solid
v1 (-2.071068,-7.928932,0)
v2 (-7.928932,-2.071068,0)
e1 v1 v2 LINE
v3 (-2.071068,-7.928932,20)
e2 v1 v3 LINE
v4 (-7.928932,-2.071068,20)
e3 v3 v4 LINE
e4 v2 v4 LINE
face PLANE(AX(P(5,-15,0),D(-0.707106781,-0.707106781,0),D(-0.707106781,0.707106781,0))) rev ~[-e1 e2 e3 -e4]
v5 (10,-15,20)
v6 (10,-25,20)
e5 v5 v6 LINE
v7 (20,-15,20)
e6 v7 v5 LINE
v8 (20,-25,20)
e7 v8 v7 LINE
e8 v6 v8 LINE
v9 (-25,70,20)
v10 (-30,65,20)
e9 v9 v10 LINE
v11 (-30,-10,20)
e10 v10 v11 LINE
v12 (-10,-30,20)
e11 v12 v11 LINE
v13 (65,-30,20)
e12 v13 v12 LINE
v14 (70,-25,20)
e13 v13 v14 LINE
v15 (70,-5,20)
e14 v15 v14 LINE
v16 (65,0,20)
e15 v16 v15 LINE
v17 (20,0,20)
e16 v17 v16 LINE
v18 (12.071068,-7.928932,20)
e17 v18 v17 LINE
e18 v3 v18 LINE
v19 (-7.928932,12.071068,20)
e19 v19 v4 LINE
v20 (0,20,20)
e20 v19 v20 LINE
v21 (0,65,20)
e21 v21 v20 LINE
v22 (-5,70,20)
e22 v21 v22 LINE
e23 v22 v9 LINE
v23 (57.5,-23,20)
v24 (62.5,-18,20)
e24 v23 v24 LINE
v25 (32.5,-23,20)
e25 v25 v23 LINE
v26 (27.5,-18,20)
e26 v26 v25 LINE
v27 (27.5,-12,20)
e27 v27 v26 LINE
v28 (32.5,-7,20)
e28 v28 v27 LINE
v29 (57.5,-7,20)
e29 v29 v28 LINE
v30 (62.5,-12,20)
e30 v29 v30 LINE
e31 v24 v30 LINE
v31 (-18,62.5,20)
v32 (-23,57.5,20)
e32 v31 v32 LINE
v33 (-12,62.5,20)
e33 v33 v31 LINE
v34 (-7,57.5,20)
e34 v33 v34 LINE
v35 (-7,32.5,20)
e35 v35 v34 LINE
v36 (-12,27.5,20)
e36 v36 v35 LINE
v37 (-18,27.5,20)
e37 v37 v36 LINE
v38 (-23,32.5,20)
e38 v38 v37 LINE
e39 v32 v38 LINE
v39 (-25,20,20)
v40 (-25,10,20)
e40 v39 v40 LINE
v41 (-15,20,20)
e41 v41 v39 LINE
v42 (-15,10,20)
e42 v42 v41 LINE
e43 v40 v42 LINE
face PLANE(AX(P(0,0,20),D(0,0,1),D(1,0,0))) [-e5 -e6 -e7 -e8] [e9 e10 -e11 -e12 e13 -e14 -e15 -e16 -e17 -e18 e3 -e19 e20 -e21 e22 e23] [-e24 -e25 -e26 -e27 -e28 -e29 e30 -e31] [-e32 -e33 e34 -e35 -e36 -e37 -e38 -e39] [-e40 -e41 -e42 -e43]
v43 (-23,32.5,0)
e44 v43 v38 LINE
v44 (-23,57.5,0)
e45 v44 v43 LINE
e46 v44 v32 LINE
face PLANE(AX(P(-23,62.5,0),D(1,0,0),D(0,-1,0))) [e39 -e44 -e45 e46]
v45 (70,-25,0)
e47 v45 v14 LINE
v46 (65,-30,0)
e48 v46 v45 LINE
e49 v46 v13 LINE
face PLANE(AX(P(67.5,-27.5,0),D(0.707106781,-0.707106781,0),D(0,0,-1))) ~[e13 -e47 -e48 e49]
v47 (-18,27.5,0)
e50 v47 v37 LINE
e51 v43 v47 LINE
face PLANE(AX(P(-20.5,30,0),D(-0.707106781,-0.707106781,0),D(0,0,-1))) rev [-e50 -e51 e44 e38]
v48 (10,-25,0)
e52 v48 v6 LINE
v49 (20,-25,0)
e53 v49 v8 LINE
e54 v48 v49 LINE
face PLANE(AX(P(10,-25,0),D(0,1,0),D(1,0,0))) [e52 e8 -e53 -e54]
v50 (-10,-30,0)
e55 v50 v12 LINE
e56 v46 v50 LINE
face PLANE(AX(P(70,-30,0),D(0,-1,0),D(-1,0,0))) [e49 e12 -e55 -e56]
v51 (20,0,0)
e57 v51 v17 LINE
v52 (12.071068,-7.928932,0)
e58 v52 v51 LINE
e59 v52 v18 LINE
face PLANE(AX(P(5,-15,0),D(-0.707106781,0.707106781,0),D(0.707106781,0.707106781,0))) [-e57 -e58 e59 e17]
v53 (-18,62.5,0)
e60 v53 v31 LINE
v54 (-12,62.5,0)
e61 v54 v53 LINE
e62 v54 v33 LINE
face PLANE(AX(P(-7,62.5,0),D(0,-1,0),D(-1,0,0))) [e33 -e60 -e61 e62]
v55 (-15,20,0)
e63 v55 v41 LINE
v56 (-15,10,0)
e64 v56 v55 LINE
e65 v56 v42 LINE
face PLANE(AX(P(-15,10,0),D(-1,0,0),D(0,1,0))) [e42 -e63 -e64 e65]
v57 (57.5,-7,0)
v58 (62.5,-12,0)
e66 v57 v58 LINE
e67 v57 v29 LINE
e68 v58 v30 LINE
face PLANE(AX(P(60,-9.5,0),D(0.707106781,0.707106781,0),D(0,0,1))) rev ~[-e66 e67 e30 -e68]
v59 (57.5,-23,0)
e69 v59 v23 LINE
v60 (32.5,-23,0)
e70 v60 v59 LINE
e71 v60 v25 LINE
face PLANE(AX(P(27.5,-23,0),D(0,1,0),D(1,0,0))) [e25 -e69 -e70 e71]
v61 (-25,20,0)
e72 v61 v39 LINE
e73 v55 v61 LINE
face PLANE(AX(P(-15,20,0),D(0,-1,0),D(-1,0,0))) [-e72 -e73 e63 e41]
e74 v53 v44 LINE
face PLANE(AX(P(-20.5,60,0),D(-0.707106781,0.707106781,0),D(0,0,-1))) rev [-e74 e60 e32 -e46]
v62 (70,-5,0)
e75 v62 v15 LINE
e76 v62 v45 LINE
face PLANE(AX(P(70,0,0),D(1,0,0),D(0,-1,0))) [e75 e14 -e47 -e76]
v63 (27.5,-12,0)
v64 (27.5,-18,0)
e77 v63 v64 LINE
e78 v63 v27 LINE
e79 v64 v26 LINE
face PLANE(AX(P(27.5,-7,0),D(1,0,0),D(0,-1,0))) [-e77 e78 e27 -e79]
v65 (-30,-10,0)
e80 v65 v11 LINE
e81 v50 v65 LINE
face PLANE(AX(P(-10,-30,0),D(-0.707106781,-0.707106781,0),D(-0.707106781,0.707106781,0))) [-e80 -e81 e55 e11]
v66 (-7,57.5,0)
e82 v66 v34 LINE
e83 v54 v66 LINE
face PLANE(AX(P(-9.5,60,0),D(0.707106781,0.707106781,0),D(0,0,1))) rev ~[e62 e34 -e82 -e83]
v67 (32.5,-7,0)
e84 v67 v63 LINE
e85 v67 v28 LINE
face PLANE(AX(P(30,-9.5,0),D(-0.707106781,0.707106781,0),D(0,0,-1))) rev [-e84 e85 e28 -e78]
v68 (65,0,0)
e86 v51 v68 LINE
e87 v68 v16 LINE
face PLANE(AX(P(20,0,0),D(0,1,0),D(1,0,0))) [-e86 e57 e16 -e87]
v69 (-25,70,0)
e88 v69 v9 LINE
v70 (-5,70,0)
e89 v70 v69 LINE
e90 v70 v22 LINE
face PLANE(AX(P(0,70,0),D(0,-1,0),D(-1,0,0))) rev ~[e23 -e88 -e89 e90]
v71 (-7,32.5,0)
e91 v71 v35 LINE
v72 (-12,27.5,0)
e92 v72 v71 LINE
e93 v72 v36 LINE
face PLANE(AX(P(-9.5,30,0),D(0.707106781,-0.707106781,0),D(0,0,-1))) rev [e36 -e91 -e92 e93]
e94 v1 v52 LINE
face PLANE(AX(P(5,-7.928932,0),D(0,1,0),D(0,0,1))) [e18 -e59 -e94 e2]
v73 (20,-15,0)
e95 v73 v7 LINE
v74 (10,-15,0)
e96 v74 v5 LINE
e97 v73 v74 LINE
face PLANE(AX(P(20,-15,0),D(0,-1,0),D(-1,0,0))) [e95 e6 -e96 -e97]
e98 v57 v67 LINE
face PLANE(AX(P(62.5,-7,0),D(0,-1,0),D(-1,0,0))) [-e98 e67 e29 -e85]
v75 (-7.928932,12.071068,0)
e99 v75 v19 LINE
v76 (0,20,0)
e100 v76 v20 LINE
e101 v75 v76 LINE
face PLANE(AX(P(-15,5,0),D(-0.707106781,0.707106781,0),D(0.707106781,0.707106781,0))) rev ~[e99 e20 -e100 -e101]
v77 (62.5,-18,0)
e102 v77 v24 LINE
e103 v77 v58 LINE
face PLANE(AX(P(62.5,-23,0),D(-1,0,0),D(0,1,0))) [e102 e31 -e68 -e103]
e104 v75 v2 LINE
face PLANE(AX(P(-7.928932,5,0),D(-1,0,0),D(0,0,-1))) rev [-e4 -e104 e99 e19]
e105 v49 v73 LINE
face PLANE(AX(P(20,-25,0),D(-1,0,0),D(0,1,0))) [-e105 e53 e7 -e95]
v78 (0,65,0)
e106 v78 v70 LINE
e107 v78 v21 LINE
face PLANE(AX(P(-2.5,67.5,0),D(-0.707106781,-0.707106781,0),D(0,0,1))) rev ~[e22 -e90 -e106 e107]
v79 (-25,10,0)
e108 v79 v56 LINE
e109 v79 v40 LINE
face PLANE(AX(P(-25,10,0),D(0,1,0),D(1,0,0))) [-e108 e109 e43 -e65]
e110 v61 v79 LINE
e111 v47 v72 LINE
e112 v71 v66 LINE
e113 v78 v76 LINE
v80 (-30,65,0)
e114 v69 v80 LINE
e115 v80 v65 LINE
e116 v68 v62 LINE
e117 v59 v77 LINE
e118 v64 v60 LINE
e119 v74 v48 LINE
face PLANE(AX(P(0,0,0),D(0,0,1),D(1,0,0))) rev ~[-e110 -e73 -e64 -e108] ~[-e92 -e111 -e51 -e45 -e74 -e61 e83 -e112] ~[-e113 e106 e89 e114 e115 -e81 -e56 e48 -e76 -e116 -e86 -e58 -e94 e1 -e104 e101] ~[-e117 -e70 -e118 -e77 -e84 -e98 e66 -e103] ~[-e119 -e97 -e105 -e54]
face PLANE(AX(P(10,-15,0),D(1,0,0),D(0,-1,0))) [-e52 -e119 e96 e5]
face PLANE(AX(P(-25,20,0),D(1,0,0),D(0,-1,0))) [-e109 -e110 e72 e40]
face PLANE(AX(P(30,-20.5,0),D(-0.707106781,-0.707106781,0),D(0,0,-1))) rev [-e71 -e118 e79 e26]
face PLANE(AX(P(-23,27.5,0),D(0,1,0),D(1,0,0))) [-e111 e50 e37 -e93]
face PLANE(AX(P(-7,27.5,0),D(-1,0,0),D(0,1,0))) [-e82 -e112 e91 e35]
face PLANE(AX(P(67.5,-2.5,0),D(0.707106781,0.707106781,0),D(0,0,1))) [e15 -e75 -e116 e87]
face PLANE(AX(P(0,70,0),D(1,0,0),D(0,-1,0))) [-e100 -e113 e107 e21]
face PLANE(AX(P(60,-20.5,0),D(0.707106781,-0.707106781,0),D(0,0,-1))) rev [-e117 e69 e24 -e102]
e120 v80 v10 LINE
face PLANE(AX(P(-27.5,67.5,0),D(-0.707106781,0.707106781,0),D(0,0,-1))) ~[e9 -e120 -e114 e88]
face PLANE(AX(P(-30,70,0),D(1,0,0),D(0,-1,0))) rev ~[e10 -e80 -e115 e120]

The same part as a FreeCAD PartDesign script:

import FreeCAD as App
import Part
import Sketcher
from FreeCAD import Vector
Q = App.Units.Quantity


def edges_at(feature, points):
    """Names of the edges that pass closest to the given points."""
    edges = feature.Shape.Edges
    near = lambda p: min(range(len(edges)), key=lambda i: edges[i].distToShape(Part.Vertex(*p))[0])
    return sorted({f"Edge{near(p) + 1}" for p in points})


def add_polygon(sketch, points):
    """Adds a closed chain of lines whose ends are joined by coincident constraints."""
    first, n = sketch.GeometryCount, len(points)
    for a, b in zip(points, points[1:] + points[:1]):
        sketch.addGeometry(Part.LineSegment(App.Vector(*a, 0), App.Vector(*b, 0)), False)
    for i in range(n):
        sketch.addConstraint(Sketcher.Constraint("Coincident", first + i, 2, first + (i + 1) % n, 1))

doc = App.newDocument("Part")
params = doc.addObject("Spreadsheet::Sheet", "Params")
for row, (alias, value) in enumerate([
    ("sketch1_width", "35 mm"),
    ("sketch1_width2", "16 mm"),
    ("sketch1_width3", "30 mm"),
    ("sketch1_width4", "80 mm"),
    ("sketch1_width5", "10 mm"),
    ("pad1_length", "20 mm"),
    ("chamfer_size", "10 mm"),
    ("chamfer2_size", "5 mm"),
    ("chamfer3_size", "5 mm"),
], start=1):
    params.set(f"A{row}", alias)
    params.set(f"B{row}", "=" + value)
    params.setAlias(f"B{row}", alias)

body = doc.addObject("PartDesign::Body", "Body")

# Sketch on XY plane
sketch1 = body.newObject("Sketcher::SketchObject", "Sketch")
sketch1.AttachmentSupport = (doc.getObject("XY_Plane"), [""])
sketch1.MapMode = "FlatFace"
add_polygon(sketch1, [(0, 70), (-30, 70), (-30, -10), (-10, -30), (70, -30), (70, 0), (20, 0), (5, -15), (-15, 5), (0, 20)])  # lines 0-9
add_polygon(sketch1, [(20, -25), (10, -25), (10, -15), (20, -15)])  # lines 10-13
add_polygon(sketch1, [(-15, 10), (-25, 10), (-25, 20), (-15, 20)])  # lines 14-17
add_polygon(sketch1, [(28, -7), (62, -7), (62, -23), (28, -23)])  # lines 18-21
add_polygon(sketch1, [(-23, 62), (-7, 62), (-7, 28), (-23, 28)])  # lines 22-25
sketch1.addConstraint([
    Sketcher.Constraint("Horizontal", 0),
    Sketcher.Constraint("Vertical", 1),
    Sketcher.Constraint("Horizontal", 3),
    Sketcher.Constraint("Vertical", 4),
    Sketcher.Constraint("Horizontal", 5),
    Sketcher.Constraint("Vertical", 9),
    Sketcher.Constraint("Horizontal", 10),
    Sketcher.Constraint("Vertical", 11),
    Sketcher.Constraint("Horizontal", 12),
    Sketcher.Constraint("Vertical", 13),
    Sketcher.Constraint("Horizontal", 14),
    Sketcher.Constraint("Vertical", 15),
    Sketcher.Constraint("Horizontal", 16),
    Sketcher.Constraint("Vertical", 17),
    Sketcher.Constraint("Horizontal", 18),
    Sketcher.Constraint("Vertical", 19),
    Sketcher.Constraint("Horizontal", 20),
    Sketcher.Constraint("Vertical", 21),
    Sketcher.Constraint("Horizontal", 22),
    Sketcher.Constraint("Vertical", 23),
    Sketcher.Constraint("Horizontal", 24),
    Sketcher.Constraint("Vertical", 25),
    Sketcher.Constraint("PointOnObject", 4, 2, -1),
    Sketcher.Constraint("PointOnObject", 8, 2, -2),
    Sketcher.Constraint("Perpendicular", 2, 6),
    Sketcher.Constraint("Perpendicular", 6, 7),
    Sketcher.Constraint("Perpendicular", 7, 8),
    Sketcher.Constraint("Horizontal", 6, 2, 11, 2),
    Sketcher.Constraint("Horizontal", 8, 2, 15, 2),
    Sketcher.Constraint("Vertical", 5, 2, 12, 2),
    Sketcher.Constraint("Vertical", 7, 2, 16, 2),
    Sketcher.Constraint("Equal", 12, 14),
    Sketcher.Constraint("Equal", 3, 1),
    Sketcher.Constraint("Equal", 0, 4),
    Sketcher.Constraint("Equal", 5, 9),
    Sketcher.Constraint("Equal", 16, 11),
    Sketcher.Constraint("Equal", 13, 15),
    Sketcher.Constraint("Equal", 24, 19),
    Sketcher.Constraint("Equal", 20, 23),
    Sketcher.Constraint("Equal", 2, 7),
    Sketcher.Constraint("DistanceX", 18, 1, 18, 2, Q("35 mm")),
    Sketcher.Constraint("DistanceX", 22, 1, 22, 2, Q("16 mm")),
    Sketcher.Constraint("DistanceX", 1, 2, 6, 2, Q("35 mm")),
    Sketcher.Constraint("DistanceY", 2, 2, 7, 2, Q("35 mm")),
    Sketcher.Constraint("DistanceX", 7, 2, 5, 2, Q("35 mm")),
    Sketcher.Constraint("DistanceX", 0, 2, 0, 1, Q("30 mm")),
    Sketcher.Constraint("DistanceX", 3, 1, 3, 2, Q("80 mm")),
    Sketcher.Constraint("DistanceX", 10, 2, 10, 1, Q("10 mm")),
    Sketcher.Constraint("DistanceY", 18, 2, -1, 1, Q("7 mm")),
    Sketcher.Constraint("DistanceX", 22, 2, -1, 1, Q("7 mm")),
    Sketcher.Constraint("DistanceX", -1, 1, 18, 2, Q("62.5 mm")),
    Sketcher.Constraint("DistanceY", -1, 1, 22, 2, Q("62.5 mm")),
])
sketch1.setExpression("Constraints[66]", "Params.sketch1_width")
sketch1.setExpression("Constraints[67]", "Params.sketch1_width2")
sketch1.setExpression("Constraints[71]", "Params.sketch1_width3")
sketch1.setExpression("Constraints[72]", "Params.sketch1_width4")
sketch1.setExpression("Constraints[73]", "Params.sketch1_width5")
pad1 = body.newObject("PartDesign::Pad", "Pad")
pad1.Profile = sketch1
pad1.setExpression("Length", "Params.pad1_length")
doc.recompute()

chamfer = body.newObject("PartDesign::Chamfer", "Chamfer")
chamfer.Base = (pad1, edges_at(pad1, [(-15, 5, 10), (5, -15, 10)]))
chamfer.setExpression("Size", "Params.chamfer_size")
doc.recompute()

chamfer2 = body.newObject("PartDesign::Chamfer", "Chamfer001")
chamfer2.Base = (chamfer, edges_at(chamfer, [
    (-23, 62.5, 10),
    (-7, 62.5, 10),
    (-7, 27.5, 10),
    (-23, 27.5, 10),
    (27.5, -23, 10),
    (27.5, -7, 10),
    (62.5, -7, 10),
    (62.5, -23, 10),
]))
chamfer2.setExpression("Size", "Params.chamfer2_size")
doc.recompute()

chamfer3 = body.newObject("PartDesign::Chamfer", "Chamfer002")
chamfer3.Base = (chamfer2, edges_at(chamfer2, [
    (-30, 70, 10),
    (0, 70, 10),
    (70, 0, 10),
    (70, -30, 10),
]))
chamfer3.setExpression("Size", "Params.chamfer3_size")

doc.recompute()
